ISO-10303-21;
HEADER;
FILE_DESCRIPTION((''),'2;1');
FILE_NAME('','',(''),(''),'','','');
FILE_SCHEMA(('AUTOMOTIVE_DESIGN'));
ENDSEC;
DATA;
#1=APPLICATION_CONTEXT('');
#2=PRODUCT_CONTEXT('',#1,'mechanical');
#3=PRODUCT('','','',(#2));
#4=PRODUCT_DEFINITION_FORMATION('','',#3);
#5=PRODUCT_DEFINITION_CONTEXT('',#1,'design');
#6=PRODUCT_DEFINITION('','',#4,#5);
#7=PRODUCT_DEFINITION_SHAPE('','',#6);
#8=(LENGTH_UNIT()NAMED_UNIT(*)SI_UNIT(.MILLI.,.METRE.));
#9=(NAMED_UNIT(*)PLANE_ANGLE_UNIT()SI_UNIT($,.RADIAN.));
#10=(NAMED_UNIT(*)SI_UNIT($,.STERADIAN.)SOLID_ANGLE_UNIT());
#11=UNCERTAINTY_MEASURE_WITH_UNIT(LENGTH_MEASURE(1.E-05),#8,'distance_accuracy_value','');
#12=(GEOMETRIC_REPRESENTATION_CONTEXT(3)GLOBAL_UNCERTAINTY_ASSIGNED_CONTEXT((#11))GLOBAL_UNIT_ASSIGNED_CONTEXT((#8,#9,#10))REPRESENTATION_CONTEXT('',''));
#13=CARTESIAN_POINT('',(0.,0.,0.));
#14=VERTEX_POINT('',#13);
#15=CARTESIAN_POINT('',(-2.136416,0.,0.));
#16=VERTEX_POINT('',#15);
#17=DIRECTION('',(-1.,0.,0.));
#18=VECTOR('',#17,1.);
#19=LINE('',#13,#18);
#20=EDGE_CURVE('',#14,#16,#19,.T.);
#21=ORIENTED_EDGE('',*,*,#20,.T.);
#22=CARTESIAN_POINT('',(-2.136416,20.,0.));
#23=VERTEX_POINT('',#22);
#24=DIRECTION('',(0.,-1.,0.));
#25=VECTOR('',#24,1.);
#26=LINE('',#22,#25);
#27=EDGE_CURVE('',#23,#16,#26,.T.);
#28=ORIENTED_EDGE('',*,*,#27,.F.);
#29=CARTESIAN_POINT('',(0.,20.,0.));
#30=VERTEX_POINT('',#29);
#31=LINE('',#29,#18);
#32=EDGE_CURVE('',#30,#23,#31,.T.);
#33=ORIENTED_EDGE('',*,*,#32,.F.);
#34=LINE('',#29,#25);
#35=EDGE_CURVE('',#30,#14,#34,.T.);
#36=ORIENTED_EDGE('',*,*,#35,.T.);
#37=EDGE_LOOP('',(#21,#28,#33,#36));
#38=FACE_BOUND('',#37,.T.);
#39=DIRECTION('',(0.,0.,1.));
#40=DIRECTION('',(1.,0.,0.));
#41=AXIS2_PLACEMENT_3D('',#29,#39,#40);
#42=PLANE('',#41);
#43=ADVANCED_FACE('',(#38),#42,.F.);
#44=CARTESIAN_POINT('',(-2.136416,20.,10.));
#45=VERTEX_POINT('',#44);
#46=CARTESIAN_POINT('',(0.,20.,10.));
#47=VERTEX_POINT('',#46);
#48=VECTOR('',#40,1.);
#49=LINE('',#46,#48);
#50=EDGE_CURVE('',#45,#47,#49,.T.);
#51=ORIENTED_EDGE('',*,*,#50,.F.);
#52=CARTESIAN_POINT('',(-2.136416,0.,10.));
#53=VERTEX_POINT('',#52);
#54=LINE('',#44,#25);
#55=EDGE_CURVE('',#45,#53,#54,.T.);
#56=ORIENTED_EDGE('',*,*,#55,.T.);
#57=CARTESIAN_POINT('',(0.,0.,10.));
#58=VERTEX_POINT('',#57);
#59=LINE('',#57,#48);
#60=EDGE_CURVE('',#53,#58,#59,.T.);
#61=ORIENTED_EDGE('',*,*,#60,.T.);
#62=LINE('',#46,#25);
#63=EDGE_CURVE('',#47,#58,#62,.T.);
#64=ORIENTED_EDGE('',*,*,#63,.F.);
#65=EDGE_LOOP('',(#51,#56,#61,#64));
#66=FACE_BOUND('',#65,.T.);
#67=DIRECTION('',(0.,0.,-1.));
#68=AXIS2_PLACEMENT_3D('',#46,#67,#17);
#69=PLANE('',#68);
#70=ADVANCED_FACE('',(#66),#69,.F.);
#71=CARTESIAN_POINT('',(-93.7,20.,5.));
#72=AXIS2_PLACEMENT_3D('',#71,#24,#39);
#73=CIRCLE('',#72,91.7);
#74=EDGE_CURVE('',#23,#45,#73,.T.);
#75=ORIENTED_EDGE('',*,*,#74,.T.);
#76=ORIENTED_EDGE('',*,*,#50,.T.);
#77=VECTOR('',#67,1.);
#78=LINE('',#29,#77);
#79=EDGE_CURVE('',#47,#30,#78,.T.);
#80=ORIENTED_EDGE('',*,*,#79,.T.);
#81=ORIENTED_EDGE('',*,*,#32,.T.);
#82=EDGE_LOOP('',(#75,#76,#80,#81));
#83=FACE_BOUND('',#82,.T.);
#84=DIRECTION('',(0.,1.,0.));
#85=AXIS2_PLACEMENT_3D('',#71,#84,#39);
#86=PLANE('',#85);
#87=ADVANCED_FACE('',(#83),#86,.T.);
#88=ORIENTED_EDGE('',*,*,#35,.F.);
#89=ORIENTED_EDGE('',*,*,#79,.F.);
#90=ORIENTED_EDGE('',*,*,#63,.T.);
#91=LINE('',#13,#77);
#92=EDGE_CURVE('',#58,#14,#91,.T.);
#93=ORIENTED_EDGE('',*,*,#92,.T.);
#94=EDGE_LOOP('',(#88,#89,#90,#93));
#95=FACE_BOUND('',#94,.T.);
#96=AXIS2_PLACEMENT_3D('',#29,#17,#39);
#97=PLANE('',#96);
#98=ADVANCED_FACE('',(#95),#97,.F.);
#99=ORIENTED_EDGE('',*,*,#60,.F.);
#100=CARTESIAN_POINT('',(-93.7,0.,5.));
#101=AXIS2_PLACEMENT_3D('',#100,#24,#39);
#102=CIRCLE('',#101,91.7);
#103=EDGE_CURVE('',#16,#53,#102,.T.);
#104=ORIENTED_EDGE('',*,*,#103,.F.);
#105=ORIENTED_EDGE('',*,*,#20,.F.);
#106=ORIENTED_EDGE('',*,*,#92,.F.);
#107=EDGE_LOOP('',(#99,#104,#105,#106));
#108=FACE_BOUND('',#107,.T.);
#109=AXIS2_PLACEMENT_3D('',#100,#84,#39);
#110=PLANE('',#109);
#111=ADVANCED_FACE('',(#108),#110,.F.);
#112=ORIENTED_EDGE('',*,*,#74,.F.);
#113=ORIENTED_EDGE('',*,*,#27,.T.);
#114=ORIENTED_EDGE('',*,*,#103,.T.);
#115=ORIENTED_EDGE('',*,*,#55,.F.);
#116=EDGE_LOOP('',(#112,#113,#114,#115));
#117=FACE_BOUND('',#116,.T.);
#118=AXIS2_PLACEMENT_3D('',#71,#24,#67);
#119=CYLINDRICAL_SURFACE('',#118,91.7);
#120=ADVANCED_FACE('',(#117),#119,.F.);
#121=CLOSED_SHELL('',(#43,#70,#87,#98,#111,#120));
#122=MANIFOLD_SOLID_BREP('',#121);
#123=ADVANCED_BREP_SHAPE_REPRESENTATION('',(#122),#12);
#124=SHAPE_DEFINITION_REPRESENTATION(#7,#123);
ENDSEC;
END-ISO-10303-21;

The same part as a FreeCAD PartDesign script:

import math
import FreeCAD as App
import Part
import Sketcher
from FreeCAD import Vector

doc = App.newDocument("Part")
body = doc.addObject("PartDesign::Body", "Body")

# Sketch on XZ plane
sketch1 = doc.addObject("Sketcher::SketchObject", "Sketch")
body.addObject(sketch1)
sketch1.AttachmentSupport = (doc.XZ_Plane, [""])
sketch1.MapMode = "FlatFace"
sketch1.addGeometry([
    Part.LineSegment(Vector(0, 10, 0), Vector(0, 0, 0)),
    Part.LineSegment(Vector(0, 0, 0), Vector(-2.1, 0, 0)),
    Part.ArcOfCircle(Part.Circle(Vector(-93.7, 5, 0), Vector(0, 0, 1), 91.7), math.radians(-3.13), math.radians(3.13)),
    Part.LineSegment(Vector(-2.1, 10, 0), Vector(0, 10, 0)),
], False)
sketch1.addConstraint([
    Sketcher.Constraint("Coincident", 0, 2, 1, 1),
    Sketcher.Constraint("Coincident", 1, 2, 2, 1),
    Sketcher.Constraint("Coincident", 2, 2, 3, 1),
    Sketcher.Constraint("Coincident", 3, 2, 0, 1),
    Sketcher.Constraint("Vertical", 0),
    Sketcher.Constraint("Horizontal", 1),
    Sketcher.Constraint("Horizontal", 3),
    Sketcher.Constraint("Coincident", 0, 2, -1, 1),
    Sketcher.Constraint("Vertical", 1, 2, 2, 2),
    Sketcher.Constraint("Radius", 2, 91.7),
    Sketcher.Constraint("DistanceY", 0, 2, 0, 1, 10.0),
    Sketcher.Constraint("DistanceX", 2, 3, -1, 1, 93.7),
])
pad1 = doc.addObject("PartDesign::Pad", "Pad")
body.addObject(pad1)
pad1.Profile = sketch1
pad1.Length = 20
pad1.Reversed = True

doc.recompute()
